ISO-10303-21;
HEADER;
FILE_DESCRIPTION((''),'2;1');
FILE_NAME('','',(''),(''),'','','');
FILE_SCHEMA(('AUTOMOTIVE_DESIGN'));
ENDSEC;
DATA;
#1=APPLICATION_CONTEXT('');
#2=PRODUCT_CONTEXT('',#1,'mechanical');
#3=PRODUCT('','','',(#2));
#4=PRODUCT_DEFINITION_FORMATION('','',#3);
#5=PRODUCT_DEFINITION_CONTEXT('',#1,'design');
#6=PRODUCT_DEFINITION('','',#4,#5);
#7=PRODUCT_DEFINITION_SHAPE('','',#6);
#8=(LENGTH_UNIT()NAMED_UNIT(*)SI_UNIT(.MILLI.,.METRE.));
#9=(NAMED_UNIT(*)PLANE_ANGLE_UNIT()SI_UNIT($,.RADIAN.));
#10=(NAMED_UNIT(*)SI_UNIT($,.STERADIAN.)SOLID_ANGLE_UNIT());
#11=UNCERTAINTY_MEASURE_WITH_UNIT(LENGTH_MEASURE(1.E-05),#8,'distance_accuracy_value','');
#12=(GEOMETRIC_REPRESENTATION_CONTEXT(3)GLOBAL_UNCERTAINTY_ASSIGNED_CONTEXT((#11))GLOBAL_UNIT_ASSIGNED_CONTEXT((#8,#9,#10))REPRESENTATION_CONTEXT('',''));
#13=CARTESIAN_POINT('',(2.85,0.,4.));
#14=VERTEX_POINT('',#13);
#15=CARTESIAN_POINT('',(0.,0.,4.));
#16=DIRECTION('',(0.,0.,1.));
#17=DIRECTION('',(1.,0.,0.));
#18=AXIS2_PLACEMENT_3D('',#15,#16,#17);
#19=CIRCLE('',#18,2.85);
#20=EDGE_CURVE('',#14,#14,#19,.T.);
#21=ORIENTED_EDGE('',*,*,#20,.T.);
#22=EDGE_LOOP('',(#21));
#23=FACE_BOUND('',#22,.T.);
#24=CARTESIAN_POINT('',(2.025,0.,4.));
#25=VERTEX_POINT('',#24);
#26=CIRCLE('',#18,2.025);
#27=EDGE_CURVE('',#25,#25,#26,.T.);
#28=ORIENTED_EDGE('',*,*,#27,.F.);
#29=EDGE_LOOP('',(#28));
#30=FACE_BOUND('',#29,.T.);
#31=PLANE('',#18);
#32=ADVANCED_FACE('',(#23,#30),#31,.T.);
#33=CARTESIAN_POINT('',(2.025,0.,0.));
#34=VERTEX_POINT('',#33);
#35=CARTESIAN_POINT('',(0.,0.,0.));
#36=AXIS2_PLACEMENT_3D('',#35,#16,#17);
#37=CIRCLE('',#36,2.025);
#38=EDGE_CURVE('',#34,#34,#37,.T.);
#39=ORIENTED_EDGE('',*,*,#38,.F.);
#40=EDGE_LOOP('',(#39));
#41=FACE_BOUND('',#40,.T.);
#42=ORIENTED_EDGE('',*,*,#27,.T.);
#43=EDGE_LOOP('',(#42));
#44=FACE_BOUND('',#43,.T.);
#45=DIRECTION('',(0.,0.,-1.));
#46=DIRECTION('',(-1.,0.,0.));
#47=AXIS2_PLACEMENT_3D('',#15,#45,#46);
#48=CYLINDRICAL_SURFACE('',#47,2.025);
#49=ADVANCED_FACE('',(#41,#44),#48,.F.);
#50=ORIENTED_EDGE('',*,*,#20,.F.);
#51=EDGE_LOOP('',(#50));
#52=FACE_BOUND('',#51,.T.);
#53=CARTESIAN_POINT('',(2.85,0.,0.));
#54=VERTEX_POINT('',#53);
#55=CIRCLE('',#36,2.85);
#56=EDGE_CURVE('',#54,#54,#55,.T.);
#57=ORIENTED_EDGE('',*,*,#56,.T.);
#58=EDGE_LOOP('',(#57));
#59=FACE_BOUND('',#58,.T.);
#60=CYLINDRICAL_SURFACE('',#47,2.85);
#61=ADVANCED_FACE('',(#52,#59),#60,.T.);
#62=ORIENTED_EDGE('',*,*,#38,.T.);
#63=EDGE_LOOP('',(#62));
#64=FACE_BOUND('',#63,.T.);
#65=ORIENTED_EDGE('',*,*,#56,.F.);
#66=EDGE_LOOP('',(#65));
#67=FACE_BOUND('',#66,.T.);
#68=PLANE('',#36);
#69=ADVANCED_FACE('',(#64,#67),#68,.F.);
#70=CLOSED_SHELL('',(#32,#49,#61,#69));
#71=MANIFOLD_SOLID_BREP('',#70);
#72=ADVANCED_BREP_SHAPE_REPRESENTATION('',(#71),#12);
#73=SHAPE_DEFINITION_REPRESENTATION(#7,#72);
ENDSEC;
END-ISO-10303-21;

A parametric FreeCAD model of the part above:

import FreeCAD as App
import Part
import Sketcher
from FreeCAD import Vector
Q = App.Units.Quantity

doc = App.newDocument("Part")
body = doc.addObject("PartDesign::Body", "Body")

# Sketch on XY plane
sketch1 = doc.addObject("Sketcher::SketchObject", "Sketch")
body.addObject(sketch1)
sketch1.AttachmentSupport = (doc.XY_Plane, [""])
sketch1.MapMode = "FlatFace"
sketch1.addGeometry(Part.Circle(Vector(0, 0, 0), Vector(0, 0, 1), 2.9), False)
sketch1.addGeometry(Part.Circle(Vector(0, 0, 0), Vector(0, 0, 1), 2), False)
sketch1.addConstraint(Sketcher.Constraint("Coincident", 0, 3, -1, 1))
sketch1.addConstraint(Sketcher.Constraint("Coincident", 1, 3, -1, 1))
sketch1.addConstraint(Sketcher.Constraint("Diameter", 0, Q("5.7 mm")))
sketch1.addConstraint(Sketcher.Constraint("Diameter", 1, Q("4.05 mm")))
pad1 = doc.addObject("PartDesign::Pad", "Pad")
body.addObject(pad1)
pad1.Profile = sketch1
pad1.Length = 4

doc.recompute()
